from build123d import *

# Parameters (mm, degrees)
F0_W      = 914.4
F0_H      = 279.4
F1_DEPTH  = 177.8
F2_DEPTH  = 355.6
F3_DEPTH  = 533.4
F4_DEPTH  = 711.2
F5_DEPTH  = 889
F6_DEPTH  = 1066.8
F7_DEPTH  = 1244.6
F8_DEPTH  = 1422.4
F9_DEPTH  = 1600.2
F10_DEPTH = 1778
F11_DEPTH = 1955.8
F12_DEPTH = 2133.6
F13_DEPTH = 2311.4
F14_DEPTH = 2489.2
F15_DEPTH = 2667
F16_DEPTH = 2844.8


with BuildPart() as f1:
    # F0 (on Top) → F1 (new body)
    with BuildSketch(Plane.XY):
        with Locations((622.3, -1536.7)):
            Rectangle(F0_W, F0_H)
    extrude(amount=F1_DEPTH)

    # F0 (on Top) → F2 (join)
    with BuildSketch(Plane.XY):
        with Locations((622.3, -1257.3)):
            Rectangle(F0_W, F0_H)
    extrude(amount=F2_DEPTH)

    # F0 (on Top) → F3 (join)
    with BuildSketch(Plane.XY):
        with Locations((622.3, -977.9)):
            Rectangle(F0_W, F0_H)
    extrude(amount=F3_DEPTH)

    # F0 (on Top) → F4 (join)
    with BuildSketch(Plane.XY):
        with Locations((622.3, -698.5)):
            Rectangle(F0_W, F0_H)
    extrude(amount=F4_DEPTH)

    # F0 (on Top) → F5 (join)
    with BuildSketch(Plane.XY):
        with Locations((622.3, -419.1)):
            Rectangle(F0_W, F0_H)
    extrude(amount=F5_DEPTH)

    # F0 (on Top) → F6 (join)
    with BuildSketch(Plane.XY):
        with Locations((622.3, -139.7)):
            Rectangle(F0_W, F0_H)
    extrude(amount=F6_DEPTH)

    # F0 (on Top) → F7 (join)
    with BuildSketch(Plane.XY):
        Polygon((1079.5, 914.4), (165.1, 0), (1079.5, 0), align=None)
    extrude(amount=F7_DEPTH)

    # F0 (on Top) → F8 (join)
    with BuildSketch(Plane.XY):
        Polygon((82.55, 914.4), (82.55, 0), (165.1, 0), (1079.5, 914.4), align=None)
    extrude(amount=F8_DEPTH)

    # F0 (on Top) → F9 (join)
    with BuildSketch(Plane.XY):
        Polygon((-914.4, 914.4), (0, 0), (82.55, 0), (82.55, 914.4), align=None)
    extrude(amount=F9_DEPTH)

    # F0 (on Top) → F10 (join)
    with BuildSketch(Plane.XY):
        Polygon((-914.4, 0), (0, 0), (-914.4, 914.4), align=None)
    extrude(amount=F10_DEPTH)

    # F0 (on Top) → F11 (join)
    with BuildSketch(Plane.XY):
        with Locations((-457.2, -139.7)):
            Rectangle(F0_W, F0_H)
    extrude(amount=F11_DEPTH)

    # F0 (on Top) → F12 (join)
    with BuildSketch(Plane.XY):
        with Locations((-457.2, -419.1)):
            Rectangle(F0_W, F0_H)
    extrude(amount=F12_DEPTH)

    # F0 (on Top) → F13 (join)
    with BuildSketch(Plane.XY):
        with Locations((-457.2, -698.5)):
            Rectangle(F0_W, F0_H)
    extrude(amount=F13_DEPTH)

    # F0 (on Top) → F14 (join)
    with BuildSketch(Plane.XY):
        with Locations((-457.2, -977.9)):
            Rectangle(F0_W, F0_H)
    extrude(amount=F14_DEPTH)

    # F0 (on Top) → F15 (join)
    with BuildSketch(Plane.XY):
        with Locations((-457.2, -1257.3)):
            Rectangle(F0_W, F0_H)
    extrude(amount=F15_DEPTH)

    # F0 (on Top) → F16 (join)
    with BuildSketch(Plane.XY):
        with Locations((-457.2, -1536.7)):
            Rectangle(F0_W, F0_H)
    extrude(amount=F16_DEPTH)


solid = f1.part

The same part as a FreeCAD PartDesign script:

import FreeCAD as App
import Part
import Sketcher
from FreeCAD import Vector
Q = App.Units.Quantity

doc = App.newDocument("Part")
body = doc.addObject("PartDesign::Body", "Body")

# Sketch on XY plane
sketch1 = body.newObject("Sketcher::SketchObject", "Sketch")
sketch1.AttachmentSupport = (doc.getObject("XY_Plane"), [""])
sketch1.MapMode = "FlatFace"
sketch1.addGeometry(Part.LineSegment(Vector(165, -1397, 0), Vector(165, -1676, 0)), False)
sketch1.addGeometry(Part.LineSegment(Vector(165, -1676, 0), Vector(1080, -1676, 0)), False)
sketch1.addGeometry(Part.LineSegment(Vector(1080, -1676, 0), Vector(1080, -1397, 0)), False)
sketch1.addGeometry(Part.LineSegment(Vector(1080, -1397, 0), Vector(165, -1397, 0)), False)
sketch1.addConstraint(Sketcher.Constraint("Coincident", 0, 2, 1, 1))
sketch1.addConstraint(Sketcher.Constraint("Coincident", 1, 2, 2, 1))
sketch1.addConstraint(Sketcher.Constraint("Coincident", 2, 2, 3, 1))
sketch1.addConstraint(Sketcher.Constraint("Coincident", 3, 2, 0, 1))
sketch1.addConstraint(Sketcher.Constraint("Vertical", 0))
sketch1.addConstraint(Sketcher.Constraint("Horizontal", 1))
sketch1.addConstraint(Sketcher.Constraint("Vertical", 2))
sketch1.addConstraint(Sketcher.Constraint("Horizontal", 3))
sketch1.addConstraint(Sketcher.Constraint("DistanceX", 1, 1, 1, 2, Q("36 in")))
sketch1.addConstraint(Sketcher.Constraint("DistanceY", 0, 2, 0, 1, Q("11 in")))
sketch1.addConstraint(Sketcher.Constraint("DistanceY", 0, 2, -1, 1, Q("66 in")))
sketch1.addConstraint(Sketcher.Constraint("DistanceX", -1, 1, 0, 2, Q("6.5 in")))
pad1 = body.newObject("PartDesign::Pad", "Pad")
pad1.Profile = sketch1
pad1.Length = Q("7 in")

# Sketch on XY plane
sketch2 = body.newObject("Sketcher::SketchObject", "Sketch001")
sketch2.AttachmentSupport = (doc.getObject("XY_Plane"), [""])
sketch2.MapMode = "FlatFace"
sketch2.addGeometry(Part.LineSegment(Vector(165, -1118, 0), Vector(165, -1397, 0)), False)
sketch2.addGeometry(Part.LineSegment(Vector(165, -1397, 0), Vector(1080, -1397, 0)), False)
sketch2.addGeometry(Part.LineSegment(Vector(1080, -1397, 0), Vector(1080, -1118, 0)), False)
sketch2.addGeometry(Part.LineSegment(Vector(1080, -1118, 0), Vector(165, -1118, 0)), False)
sketch2.addConstraint(Sketcher.Constraint("Coincident", 0, 2, 1, 1))
sketch2.addConstraint(Sketcher.Constraint("Coincident", 1, 2, 2, 1))
sketch2.addConstraint(Sketcher.Constraint("Coincident", 2, 2, 3, 1))
sketch2.addConstraint(Sketcher.Constraint("Coincident", 3, 2, 0, 1))
sketch2.addConstraint(Sketcher.Constraint("Vertical", 0))
sketch2.addConstraint(Sketcher.Constraint("Horizontal", 1))
sketch2.addConstraint(Sketcher.Constraint("Vertical", 2))
sketch2.addConstraint(Sketcher.Constraint("Horizontal", 3))
sketch2.addConstraint(Sketcher.Constraint("DistanceX", 1, 1, 1, 2, Q("36 in")))
sketch2.addConstraint(Sketcher.Constraint("DistanceY", 0, 2, 0, 1, Q("11 in")))
sketch2.addConstraint(Sketcher.Constraint("DistanceY", 0, 2, -1, 1, Q("55 in")))
sketch2.addConstraint(Sketcher.Constraint("DistanceX", -1, 1, 0, 2, Q("6.5 in")))
pad2 = body.newObject("PartDesign::Pad", "Pad001")
pad2.Profile = sketch2
pad2.Length = Q("14 in")

# Sketch on XY plane
sketch3 = body.newObject("Sketcher::SketchObject", "Sketch002")
sketch3.AttachmentSupport = (doc.getObject("XY_Plane"), [""])
sketch3.MapMode = "FlatFace"
sketch3.addGeometry(Part.LineSegment(Vector(165, -838, 0), Vector(165, -1118, 0)), False)
sketch3.addGeometry(Part.LineSegment(Vector(165, -1118, 0), Vector(1080, -1118, 0)), False)
sketch3.addGeometry(Part.LineSegment(Vector(1080, -1118, 0), Vector(1080, -838, 0)), False)
sketch3.addGeometry(Part.LineSegment(Vector(1080, -838, 0), Vector(165, -838, 0)), False)
sketch3.addConstraint(Sketcher.Constraint("Coincident", 0, 2, 1, 1))
sketch3.addConstraint(Sketcher.Constraint("Coincident", 1, 2, 2, 1))
sketch3.addConstraint(Sketcher.Constraint("Coincident", 2, 2, 3, 1))
sketch3.addConstraint(Sketcher.Constraint("Coincident", 3, 2, 0, 1))
sketch3.addConstraint(Sketcher.Constraint("Vertical", 0))
sketch3.addConstraint(Sketcher.Constraint("Horizontal", 1))
sketch3.addConstraint(Sketcher.Constraint("Vertical", 2))
sketch3.addConstraint(Sketcher.Constraint("Horizontal", 3))
sketch3.addConstraint(Sketcher.Constraint("DistanceX", 1, 1, 1, 2, Q("36 in")))
sketch3.addConstraint(Sketcher.Constraint("DistanceY", 0, 2, 0, 1, Q("11 in")))
sketch3.addConstraint(Sketcher.Constraint("DistanceY", 0, 2, -1, 1, Q("44 in")))
sketch3.addConstraint(Sketcher.Constraint("DistanceX", -1, 1, 0, 2, Q("6.5 in")))
pad3 = body.newObject("PartDesign::Pad", "Pad002")
pad3.Profile = sketch3
pad3.Length = Q("21 in")

# Sketch on XY plane
sketch4 = body.newObject("Sketcher::SketchObject", "Sketch003")
sketch4.AttachmentSupport = (doc.getObject("XY_Plane"), [""])
sketch4.MapMode = "FlatFace"
sketch4.addGeometry(Part.LineSegment(Vector(165, -559, 0), Vector(165, -838, 0)), False)
sketch4.addGeometry(Part.LineSegment(Vector(165, -838, 0), Vector(1080, -838, 0)), False)
sketch4.addGeometry(Part.LineSegment(Vector(1080, -838, 0), Vector(1080, -559, 0)), False)
sketch4.addGeometry(Part.LineSegment(Vector(1080, -559, 0), Vector(165, -559, 0)), False)
sketch4.addConstraint(Sketcher.Constraint("Coincident", 0, 2, 1, 1))
sketch4.addConstraint(Sketcher.Constraint("Coincident", 1, 2, 2, 1))
sketch4.addConstraint(Sketcher.Constraint("Coincident", 2, 2, 3, 1))
sketch4.addConstraint(Sketcher.Constraint("Coincident", 3, 2, 0, 1))
sketch4.addConstraint(Sketcher.Constraint("Vertical", 0))
sketch4.addConstraint(Sketcher.Constraint("Horizontal", 1))
sketch4.addConstraint(Sketcher.Constraint("Vertical", 2))
sketch4.addConstraint(Sketcher.Constraint("Horizontal", 3))
sketch4.addConstraint(Sketcher.Constraint("DistanceX", 1, 1, 1, 2, Q("36 in")))
sketch4.addConstraint(Sketcher.Constraint("DistanceY", 0, 2, 0, 1, Q("11 in")))
sketch4.addConstraint(Sketcher.Constraint("DistanceY", 0, 2, -1, 1, Q("33 in")))
sketch4.addConstraint(Sketcher.Constraint("DistanceX", -1, 1, 0, 2, Q("6.5 in")))
pad4 = body.newObject("PartDesign::Pad", "Pad003")
pad4.Profile = sketch4
pad4.Length = Q("28 in")

# Sketch on XY plane
sketch5 = body.newObject("Sketcher::SketchObject", "Sketch004")
sketch5.AttachmentSupport = (doc.getObject("XY_Plane"), [""])
sketch5.MapMode = "FlatFace"
sketch5.addGeometry(Part.LineSegment(Vector(165, -279, 0), Vector(165, -559, 0)), False)
sketch5.addGeometry(Part.LineSegment(Vector(165, -559, 0), Vector(1080, -559, 0)), False)
sketch5.addGeometry(Part.LineSegment(Vector(1080, -559, 0), Vector(1080, -279, 0)), False)
sketch5.addGeometry(Part.LineSegment(Vector(1080, -279, 0), Vector(165, -279, 0)), False)
sketch5.addConstraint(Sketcher.Constraint("Coincident", 0, 2, 1, 1))
sketch5.addConstraint(Sketcher.Constraint("Coincident", 1, 2, 2, 1))
sketch5.addConstraint(Sketcher.Constraint("Coincident", 2, 2, 3, 1))
sketch5.addConstraint(Sketcher.Constraint("Coincident", 3, 2, 0, 1))
sketch5.addConstraint(Sketcher.Constraint("Vertical", 0))
sketch5.addConstraint(Sketcher.Constraint("Horizontal", 1))
sketch5.addConstraint(Sketcher.Constraint("Vertical", 2))
sketch5.addConstraint(Sketcher.Constraint("Horizontal", 3))
sketch5.addConstraint(Sketcher.Constraint("DistanceX", 1, 1, 1, 2, Q("36 in")))
sketch5.addConstraint(Sketcher.Constraint("DistanceY", 0, 2, 0, 1, Q("11 in")))
sketch5.addConstraint(Sketcher.Constraint("DistanceY", 0, 2, -1, 1, Q("22 in")))
sketch5.addConstraint(Sketcher.Constraint("DistanceX", -1, 1, 0, 2, Q("6.5 in")))
pad5 = body.newObject("PartDesign::Pad", "Pad004")
pad5.Profile = sketch5
pad5.Length = Q("35 in")

# Sketch on XY plane
sketch6 = body.newObject("Sketcher::SketchObject", "Sketch005")
sketch6.AttachmentSupport = (doc.getObject("XY_Plane"), [""])
sketch6.MapMode = "FlatFace"
sketch6.addGeometry(Part.LineSegment(Vector(165, 0, 0), Vector(165, -279, 0)), False)
sketch6.addGeometry(Part.LineSegment(Vector(165, -279, 0), Vector(1080, -279, 0)), False)
sketch6.addGeometry(Part.LineSegment(Vector(1080, -279, 0), Vector(1080, 0, 0)), False)
sketch6.addGeometry(Part.LineSegment(Vector(1080, 0, 0), Vector(165, 0, 0)), False)
sketch6.addConstraint(Sketcher.Constraint("Coincident", 0, 2, 1, 1))
sketch6.addConstraint(Sketcher.Constraint("Coincident", 1, 2, 2, 1))
sketch6.addConstraint(Sketcher.Constraint("Coincident", 2, 2, 3, 1))
sketch6.addConstraint(Sketcher.Constraint("Coincident", 3, 2, 0, 1))
sketch6.addConstraint(Sketcher.Constraint("Vertical", 0))
sketch6.addConstraint(Sketcher.Constraint("Horizontal", 1))
sketch6.addConstraint(Sketcher.Constraint("Vertical", 2))
sketch6.addConstraint(Sketcher.Constraint("Horizontal", 3))
sketch6.addConstraint(Sketcher.Constraint("PointOnObject", 2, 2, -1))
sketch6.addConstraint(Sketcher.Constraint("DistanceX", 1, 1, 1, 2, Q("36 in")))
sketch6.addConstraint(Sketcher.Constraint("DistanceY", 0, 2, 0, 1, Q("11 in")))
sketch6.addConstraint(Sketcher.Constraint("DistanceX", -1, 1, 0, 2, Q("6.5 in")))
pad6 = body.newObject("PartDesign::Pad", "Pad005")
pad6.Profile = sketch6
pad6.Length = Q("42 in")

# Sketch on XY plane
sketch7 = body.newObject("Sketcher::SketchObject", "Sketch006")
sketch7.AttachmentSupport = (doc.getObject("XY_Plane"), [""])
sketch7.MapMode = "FlatFace"
sketch7.addGeometry(Part.LineSegment(Vector(1080, 914, 0), Vector(165, 0, 0)), False)
sketch7.addGeometry(Part.LineSegment(Vector(165, 0, 0), Vector(1080, 0, 0)), False)
sketch7.addGeometry(Part.LineSegment(Vector(1080, 0, 0), Vector(1080, 914, 0)), False)
sketch7.addConstraint(Sketcher.Constraint("Coincident", 0, 2, 1, 1))
sketch7.addConstraint(Sketcher.Constraint("Coincident", 1, 2, 2, 1))
sketch7.addConstraint(Sketcher.Constraint("Coincident", 2, 2, 0, 1))
sketch7.addConstraint(Sketcher.Constraint("Horizontal", 1))
sketch7.addConstraint(Sketcher.Constraint("Vertical", 2))
sketch7.addConstraint(Sketcher.Constraint("PointOnObject", 0, 2, -1))
sketch7.addConstraint(Sketcher.Constraint("Equal", 1, 2))
sketch7.addConstraint(Sketcher.Constraint("DistanceX", 1, 1, 1, 2, Q("36 in")))
sketch7.addConstraint(Sketcher.Constraint("DistanceX", -1, 1, 0, 2, Q("6.5 in")))
pad7 = body.newObject("PartDesign::Pad", "Pad006")
pad7.Profile = sketch7
pad7.Length = Q("49 in")

# Sketch on XY plane
sketch8 = body.newObject("Sketcher::SketchObject", "Sketch007")
sketch8.AttachmentSupport = (doc.getObject("XY_Plane"), [""])
sketch8.MapMode = "FlatFace"
sketch8.addGeometry(Part.LineSegment(Vector(83, 914, 0), Vector(83, 0, 0)), False)
sketch8.addGeometry(Part.LineSegment(Vector(83, 0, 0), Vector(165, 0, 0)), False)
sketch8.addGeometry(Part.LineSegment(Vector(165, 0, 0), Vector(1080, 914, 0)), False)
sketch8.addGeometry(Part.LineSegment(Vector(1080, 914, 0), Vector(83, 914, 0)), False)
sketch8.addConstraint(Sketcher.Constraint("Coincident", 0, 2, 1, 1))
sketch8.addConstraint(Sketcher.Constraint("Coincident", 1, 2, 2, 1))
sketch8.addConstraint(Sketcher.Constraint("Coincident", 2, 2, 3, 1))
sketch8.addConstraint(Sketcher.Constraint("Coincident", 3, 2, 0, 1))
sketch8.addConstraint(Sketcher.Constraint("Vertical", 0))
sketch8.addConstraint(Sketcher.Constraint("Horizontal", 1))
sketch8.addConstraint(Sketcher.Constraint("Horizontal", 3))
sketch8.addConstraint(Sketcher.Constraint("PointOnObject", 0, 2, -1))
sketch8.addConstraint(Sketcher.Constraint("DistanceY", 0, 2, 0, 1, Q("36 in")))
sketch8.addConstraint(Sketcher.Constraint("Angle", 2, Q("45 deg")))
sketch8.addConstraint(Sketcher.Constraint("DistanceX", 1, 1, 1, 2, Q("3.25 in")))
sketch8.addConstraint(Sketcher.Constraint("DistanceX", -1, 1, 1, 2, Q("6.5 in")))
pad8 = body.newObject("PartDesign::Pad", "Pad007")
pad8.Profile = sketch8
pad8.Length = Q("56 in")

# Sketch on XY plane
sketch9 = body.newObject("Sketcher::SketchObject", "Sketch008")
sketch9.AttachmentSupport = (doc.getObject("XY_Plane"), [""])
sketch9.MapMode = "FlatFace"
sketch9.addGeometry(Part.LineSegment(Vector(-914, 914, 0), Vector(0, 0, 0)), False)
sketch9.addGeometry(Part.LineSegment(Vector(0, 0, 0), Vector(83, 0, 0)), False)
sketch9.addGeometry(Part.LineSegment(Vector(83, 0, 0), Vector(83, 914, 0)), False)
sketch9.addGeometry(Part.LineSegment(Vector(83, 914, 0), Vector(-914, 914, 0)), False)
sketch9.addConstraint(Sketcher.Constraint("Coincident", 0, 2, 1, 1))
sketch9.addConstraint(Sketcher.Constraint("Coincident", 1, 2, 2, 1))
sketch9.addConstraint(Sketcher.Constraint("Coincident", 2, 2, 3, 1))
sketch9.addConstraint(Sketcher.Constraint("Coincident", 3, 2, 0, 1))
sketch9.addConstraint(Sketcher.Constraint("Horizontal", 1))
sketch9.addConstraint(Sketcher.Constraint("Vertical", 2))
sketch9.addConstraint(Sketcher.Constraint("Horizontal", 3))
sketch9.addConstraint(Sketcher.Constraint("Coincident", 0, 2, -1, 1))
sketch9.addConstraint(Sketcher.Constraint("DistanceY", 2, 1, 2, 2, Q("36 in")))
sketch9.addConstraint(Sketcher.Constraint("DistanceX", 3, 2, -1, 1, Q("36 in")))
sketch9.addConstraint(Sketcher.Constraint("DistanceX", 1, 1, 1, 2, Q("3.25 in")))
pad9 = body.newObject("PartDesign::Pad", "Pad008")
pad9.Profile = sketch9
pad9.Length = Q("63 in")

# Sketch on XY plane
sketch10 = body.newObject("Sketcher::SketchObject", "Sketch009")
sketch10.AttachmentSupport = (doc.getObject("XY_Plane"), [""])
sketch10.MapMode = "FlatFace"
sketch10.addGeometry(Part.LineSegment(Vector(-914, 0, 0), Vector(0, 0, 0)), False)
sketch10.addGeometry(Part.LineSegment(Vector(0, 0, 0), Vector(-914, 914, 0)), False)
sketch10.addGeometry(Part.LineSegment(Vector(-914, 914, 0), Vector(-914, 0, 0)), False)
sketch10.addConstraint(Sketcher.Constraint("Coincident", 0, 2, 1, 1))
sketch10.addConstraint(Sketcher.Constraint("Coincident", 1, 2, 2, 1))
sketch10.addConstraint(Sketcher.Constraint("Coincident", 2, 2, 0, 1))
sketch10.addConstraint(Sketcher.Constraint("Horizontal", 0))
sketch10.addConstraint(Sketcher.Constraint("Vertical", 2))
sketch10.addConstraint(Sketcher.Constraint("Coincident", 0, 2, -1, 1))
sketch10.addConstraint(Sketcher.Constraint("Equal", 0, 2))
sketch10.addConstraint(Sketcher.Constraint("DistanceX", 0, 1, 0, 2, Q("36 in")))
pad10 = body.newObject("PartDesign::Pad", "Pad009")
pad10.Profile = sketch10
pad10.Length = Q("70 in")

# Sketch on XY plane
sketch11 = body.newObject("Sketcher::SketchObject", "Sketch010")
sketch11.AttachmentSupport = (doc.getObject("XY_Plane"), [""])
sketch11.MapMode = "FlatFace"
sketch11.addGeometry(Part.LineSegment(Vector(-914, 0, 0), Vector(-914, -279, 0)), False)
sketch11.addGeometry(Part.LineSegment(Vector(-914, -279, 0), Vector(0, -279, 0)), False)
sketch11.addGeometry(Part.LineSegment(Vector(0, -279, 0), Vector(0, 0, 0)), False)
sketch11.addGeometry(Part.LineSegment(Vector(0, 0, 0), Vector(-914, 0, 0)), False)
sketch11.addConstraint(Sketcher.Constraint("Coincident", 0, 2, 1, 1))
sketch11.addConstraint(Sketcher.Constraint("Coincident", 1, 2, 2, 1))
sketch11.addConstraint(Sketcher.Constraint("Coincident", 2, 2, 3, 1))
sketch11.addConstraint(Sketcher.Constraint("Coincident", 3, 2, 0, 1))
sketch11.addConstraint(Sketcher.Constraint("Vertical", 0))
sketch11.addConstraint(Sketcher.Constraint("Horizontal", 1))
sketch11.addConstraint(Sketcher.Constraint("Vertical", 2))
sketch11.addConstraint(Sketcher.Constraint("Horizontal", 3))
sketch11.addConstraint(Sketcher.Constraint("Coincident", 2, 2, -1, 1))
sketch11.addConstraint(Sketcher.Constraint("DistanceX", 1, 1, 1, 2, Q("36 in")))
sketch11.addConstraint(Sketcher.Constraint("DistanceY", 0, 2, 0, 1, Q("11 in")))
pad11 = body.newObject("PartDesign::Pad", "Pad010")
pad11.Profile = sketch11
pad11.Length = Q("77 in")

# Sketch on XY plane
sketch12 = body.newObject("Sketcher::SketchObject", "Sketch011")
sketch12.AttachmentSupport = (doc.getObject("XY_Plane"), [""])
sketch12.MapMode = "FlatFace"
sketch12.addGeometry(Part.LineSegment(Vector(-914, -279, 0), Vector(-914, -559, 0)), False)
sketch12.addGeometry(Part.LineSegment(Vector(-914, -559, 0), Vector(0, -559, 0)), False)
sketch12.addGeometry(Part.LineSegment(Vector(0, -559, 0), Vector(0, -279, 0)), False)
sketch12.addGeometry(Part.LineSegment(Vector(0, -279, 0), Vector(-914, -279, 0)), False)
sketch12.addConstraint(Sketcher.Constraint("Coincident", 0, 2, 1, 1))
sketch12.addConstraint(Sketcher.Constraint("Coincident", 1, 2, 2, 1))
sketch12.addConstraint(Sketcher.Constraint("Coincident", 2, 2, 3, 1))
sketch12.addConstraint(Sketcher.Constraint("Coincident", 3, 2, 0, 1))
sketch12.addConstraint(Sketcher.Constraint("Vertical", 0))
sketch12.addConstraint(Sketcher.Constraint("Horizontal", 1))
sketch12.addConstraint(Sketcher.Constraint("Vertical", 2))
sketch12.addConstraint(Sketcher.Constraint("Horizontal", 3))
sketch12.addConstraint(Sketcher.Constraint("PointOnObject", 1, 2, -2))
sketch12.addConstraint(Sketcher.Constraint("DistanceX", 1, 1, 1, 2, Q("36 in")))
sketch12.addConstraint(Sketcher.Constraint("DistanceY", 0, 2, 0, 1, Q("11 in")))
sketch12.addConstraint(Sketcher.Constraint("DistanceY", 0, 2, -1, 1, Q("22 in")))
pad12 = body.newObject("PartDesign::Pad", "Pad011")
pad12.Profile = sketch12
pad12.Length = Q("84 in")

# Sketch on XY plane
sketch13 = body.newObject("Sketcher::SketchObject", "Sketch012")
sketch13.AttachmentSupport = (doc.getObject("XY_Plane"), [""])
sketch13.MapMode = "FlatFace"
sketch13.addGeometry(Part.LineSegment(Vector(-914, -559, 0), Vector(-914, -838, 0)), False)
sketch13.addGeometry(Part.LineSegment(Vector(-914, -838, 0), Vector(0, -838, 0)), False)
sketch13.addGeometry(Part.LineSegment(Vector(0, -838, 0), Vector(0, -559, 0)), False)
sketch13.addGeometry(Part.LineSegment(Vector(0, -559, 0), Vector(-914, -559, 0)), False)
sketch13.addConstraint(Sketcher.Constraint("Coincident", 0, 2, 1, 1))
sketch13.addConstraint(Sketcher.Constraint("Coincident", 1, 2, 2, 1))
sketch13.addConstraint(Sketcher.Constraint("Coincident", 2, 2, 3, 1))
sketch13.addConstraint(Sketcher.Constraint("Coincident", 3, 2, 0, 1))
sketch13.addConstraint(Sketcher.Constraint("Vertical", 0))
sketch13.addConstraint(Sketcher.Constraint("Horizontal", 1))
sketch13.addConstraint(Sketcher.Constraint("Vertical", 2))
sketch13.addConstraint(Sketcher.Constraint("Horizontal", 3))
sketch13.addConstraint(Sketcher.Constraint("PointOnObject", 1, 2, -2))
sketch13.addConstraint(Sketcher.Constraint("DistanceX", 1, 1, 1, 2, Q("36 in")))
sketch13.addConstraint(Sketcher.Constraint("DistanceY", 0, 2, 0, 1, Q("11 in")))
sketch13.addConstraint(Sketcher.Constraint("DistanceY", 0, 2, -1, 1, Q("33 in")))
pad13 = body.newObject("PartDesign::Pad", "Pad012")
pad13.Profile = sketch13
pad13.Length = Q("91 in")

# Sketch on XY plane
sketch14 = body.newObject("Sketcher::SketchObject", "Sketch013")
sketch14.AttachmentSupport = (doc.getObject("XY_Plane"), [""])
sketch14.MapMode = "FlatFace"
sketch14.addGeometry(Part.LineSegment(Vector(-914, -838, 0), Vector(-914, -1118, 0)), False)
sketch14.addGeometry(Part.LineSegment(Vector(-914, -1118, 0), Vector(0, -1118, 0)), False)
sketch14.addGeometry(Part.LineSegment(Vector(0, -1118, 0), Vector(0, -838, 0)), False)
sketch14.addGeometry(Part.LineSegment(Vector(0, -838, 0), Vector(-914, -838, 0)), False)
sketch14.addConstraint(Sketcher.Constraint("Coincident", 0, 2, 1, 1))
sketch14.addConstraint(Sketcher.Constraint("Coincident", 1, 2, 2, 1))
sketch14.addConstraint(Sketcher.Constraint("Coincident", 2, 2, 3, 1))
sketch14.addConstraint(Sketcher.Constraint("Coincident", 3, 2, 0, 1))
sketch14.addConstraint(Sketcher.Constraint("Vertical", 0))
sketch14.addConstraint(Sketcher.Constraint("Horizontal", 1))
sketch14.addConstraint(Sketcher.Constraint("Vertical", 2))
sketch14.addConstraint(Sketcher.Constraint("Horizontal", 3))
sketch14.addConstraint(Sketcher.Constraint("PointOnObject", 1, 2, -2))
sketch14.addConstraint(Sketcher.Constraint("DistanceX", 1, 1, 1, 2, Q("36 in")))
sketch14.addConstraint(Sketcher.Constraint("DistanceY", 0, 2, 0, 1, Q("11 in")))
sketch14.addConstraint(Sketcher.Constraint("DistanceY", 0, 2, -1, 1, Q("44 in")))
pad14 = body.newObject("PartDesign::Pad", "Pad013")
pad14.Profile = sketch14
pad14.Length = Q("98 in")

# Sketch on XY plane
sketch15 = body.newObject("Sketcher::SketchObject", "Sketch014")
sketch15.AttachmentSupport = (doc.getObject("XY_Plane"), [""])
sketch15.MapMode = "FlatFace"
sketch15.addGeometry(Part.LineSegment(Vector(-914, -1118, 0), Vector(-914, -1397, 0)), False)
sketch15.addGeometry(Part.LineSegment(Vector(-914, -1397, 0), Vector(0, -1397, 0)), False)
sketch15.addGeometry(Part.LineSegment(Vector(0, -1397, 0), Vector(0, -1118, 0)), False)
sketch15.addGeometry(Part.LineSegment(Vector(0, -1118, 0), Vector(-914, -1118, 0)), False)
sketch15.addConstraint(Sketcher.Constraint("Coincident", 0, 2, 1, 1))
sketch15.addConstraint(Sketcher.Constraint("Coincident", 1, 2, 2, 1))
sketch15.addConstraint(Sketcher.Constraint("Coincident", 2, 2, 3, 1))
sketch15.addConstraint(Sketcher.Constraint("Coincident", 3, 2, 0, 1))
sketch15.addConstraint(Sketcher.Constraint("Vertical", 0))
sketch15.addConstraint(Sketcher.Constraint("Horizontal", 1))
sketch15.addConstraint(Sketcher.Constraint("Vertical", 2))
sketch15.addConstraint(Sketcher.Constraint("Horizontal", 3))
sketch15.addConstraint(Sketcher.Constraint("PointOnObject", 1, 2, -2))
sketch15.addConstraint(Sketcher.Constraint("DistanceX", 1, 1, 1, 2, Q("36 in")))
sketch15.addConstraint(Sketcher.Constraint("DistanceY", 0, 2, 0, 1, Q("11 in")))
sketch15.addConstraint(Sketcher.Constraint("DistanceY", 0, 2, -1, 1, Q("55 in")))
pad15 = body.newObject("PartDesign::Pad", "Pad014")
pad15.Profile = sketch15
pad15.Length = Q("105 in")

# Sketch on XY plane
sketch16 = body.newObject("Sketcher::SketchObject", "Sketch015")
sketch16.AttachmentSupport = (doc.getObject("XY_Plane"), [""])
sketch16.MapMode = "FlatFace"
sketch16.addGeometry(Part.LineSegment(Vector(-914, -1397, 0), Vector(-914, -1676, 0)), False)
sketch16.addGeometry(Part.LineSegment(Vector(-914, -1676, 0), Vector(0, -1676, 0)), False)
sketch16.addGeometry(Part.LineSegment(Vector(0, -1676, 0), Vector(0, -1397, 0)), False)
sketch16.addGeometry(Part.LineSegment(Vector(0, -1397, 0), Vector(-914, -1397, 0)), False)
sketch16.addConstraint(Sketcher.Constraint("Coincident", 0, 2, 1, 1))
sketch16.addConstraint(Sketcher.Constraint("Coincident", 1, 2, 2, 1))
sketch16.addConstraint(Sketcher.Constraint("Coincident", 2, 2, 3, 1))
sketch16.addConstraint(Sketcher.Constraint("Coincident", 3, 2, 0, 1))
sketch16.addConstraint(Sketcher.Constraint("Vertical", 0))
sketch16.addConstraint(Sketcher.Constraint("Horizontal", 1))
sketch16.addConstraint(Sketcher.Constraint("Vertical", 2))
sketch16.addConstraint(Sketcher.Constraint("Horizontal", 3))
sketch16.addConstraint(Sketcher.Constraint("PointOnObject", 1, 2, -2))
sketch16.addConstraint(Sketcher.Constraint("DistanceX", 1, 1, 1, 2, Q("36 in")))
sketch16.addConstraint(Sketcher.Constraint("DistanceY", 0, 2, 0, 1, Q("11 in")))
sketch16.addConstraint(Sketcher.Constraint("DistanceY", 0, 2, -1, 1, Q("66 in")))
pad16 = body.newObject("PartDesign::Pad", "Pad015")
pad16.Profile = sketch16
pad16.Length = Q("112 in")

doc.recompute()
